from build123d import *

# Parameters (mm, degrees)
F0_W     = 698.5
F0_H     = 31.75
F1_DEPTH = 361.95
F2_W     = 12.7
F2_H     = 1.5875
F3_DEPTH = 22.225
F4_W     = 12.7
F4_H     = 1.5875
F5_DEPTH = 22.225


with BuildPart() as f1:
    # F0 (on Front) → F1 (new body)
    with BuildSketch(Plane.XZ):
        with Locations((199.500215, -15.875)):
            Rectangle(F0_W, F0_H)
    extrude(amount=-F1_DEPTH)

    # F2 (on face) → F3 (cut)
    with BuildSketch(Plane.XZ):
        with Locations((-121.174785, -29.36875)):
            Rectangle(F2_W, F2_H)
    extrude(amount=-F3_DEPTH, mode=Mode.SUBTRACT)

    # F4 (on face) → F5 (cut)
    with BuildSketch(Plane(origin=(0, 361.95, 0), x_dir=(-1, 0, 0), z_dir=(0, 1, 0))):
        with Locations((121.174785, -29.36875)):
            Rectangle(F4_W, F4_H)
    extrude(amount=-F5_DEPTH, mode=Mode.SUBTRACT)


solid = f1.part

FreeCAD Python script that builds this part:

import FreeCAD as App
import Part
import Sketcher

V = App.Vector
Q = App.Units.Quantity

doc = App.newDocument("Part")
body = doc.addObject("PartDesign::Body", "Body")

sketch1 = body.newObject("Sketcher::SketchObject", "Sketch")
sketch1.AttachmentSupport = (doc.getObject("XZ_Plane"), [""])
sketch1.MapMode = "FlatFace"
sketch1.addGeometry([
    Part.LineSegment(V(-150, 0, 0), V(-150, -32, 0)),
    Part.LineSegment(V(-150, -32, 0), V(549, -32, 0)),
    Part.LineSegment(V(549, -32, 0), V(549, 0, 0)),
    Part.LineSegment(V(549, 0, 0), V(-150, 0, 0)),
], False)
sketch1.addConstraint([
    Sketcher.Constraint("Coincident", 0, 2, 1, 1),
    Sketcher.Constraint("Coincident", 1, 2, 2, 1),
    Sketcher.Constraint("Coincident", 2, 2, 3, 1),
    Sketcher.Constraint("Coincident", 3, 2, 0, 1),
    Sketcher.Constraint("Vertical", 0),
    Sketcher.Constraint("Horizontal", 1),
    Sketcher.Constraint("Vertical", 2),
    Sketcher.Constraint("Horizontal", 3),
    Sketcher.Constraint("PointOnObject", 2, 2, -1),
    Sketcher.Constraint("DistanceX", 1, 1, 1, 2, Q("27.5 in")),
    Sketcher.Constraint("DistanceY", 0, 2, 0, 1, Q("1.25 in")),
    Sketcher.Constraint("DistanceX", 0, 2, -1, 1, 149.749785),
])
pad1 = body.newObject("PartDesign::Pad", "Pad")
pad1.Profile = sketch1
pad1.Length = Q("14.25 in")
pad1.Reversed = True

sketch2 = body.newObject("Sketcher::SketchObject", "Sketch001")
sketch2.AttachmentSupport = (doc.getObject("XZ_Plane"), [""])
sketch2.MapMode = "FlatFace"
sketch2.addGeometry([
    Part.LineSegment(V(-127.5, -28.6, 0), V(-127.5, -30.2, 0)),
    Part.LineSegment(V(-127.5, -30.2, 0), V(-114.8, -30.2, 0)),
    Part.LineSegment(V(-114.8, -30.2, 0), V(-114.8, -28.6, 0)),
    Part.LineSegment(V(-114.8, -28.6, 0), V(-127.5, -28.6, 0)),
], False)
sketch2.addConstraint([
    Sketcher.Constraint("Coincident", 0, 2, 1, 1),
    Sketcher.Constraint("Coincident", 1, 2, 2, 1),
    Sketcher.Constraint("Coincident", 2, 2, 3, 1),
    Sketcher.Constraint("Coincident", 3, 2, 0, 1),
    Sketcher.Constraint("Vertical", 0),
    Sketcher.Constraint("Horizontal", 1),
    Sketcher.Constraint("Vertical", 2),
    Sketcher.Constraint("Horizontal", 3),
    Sketcher.Constraint("DistanceX", 1, 1, 1, 2, Q("0.5 in")),
    Sketcher.Constraint("DistanceY", 0, 2, 0, 1, Q("0.0625 in")),
    Sketcher.Constraint("DistanceY", 0, 2, -1, 1, Q("1.1875 in")),
    Sketcher.Constraint("DistanceX", 0, 2, -1, 1, 127.524785),
])
pocket1 = body.newObject("PartDesign::Pocket", "Pocket")
pocket1.Profile = sketch2
pocket1.Length = Q("0.875 in")

sketch3 = body.newObject("Sketcher::SketchObject", "Sketch002")
sketch3.AttachmentSupport = (doc.getObject("XZ_Plane"), [""])
sketch3.MapMode = "FlatFace"
sketch3.AttachmentOffset = App.Placement(V(0, 0, -14.25 * 25.4), App.Rotation())
sketch3.addGeometry([
    Part.LineSegment(V(-114.8, -28.6, 0), V(-114.8, -30.2, 0)),
    Part.LineSegment(V(-114.8, -30.2, 0), V(-127.5, -30.2, 0)),
    Part.LineSegment(V(-127.5, -30.2, 0), V(-127.5, -28.6, 0)),
    Part.LineSegment(V(-127.5, -28.6, 0), V(-114.8, -28.6, 0)),
], False)
sketch3.addConstraint([
    Sketcher.Constraint("Coincident", 0, 2, 1, 1),
    Sketcher.Constraint("Coincident", 1, 2, 2, 1),
    Sketcher.Constraint("Coincident", 2, 2, 3, 1),
    Sketcher.Constraint("Coincident", 3, 2, 0, 1),
    Sketcher.Constraint("Vertical", 0),
    Sketcher.Constraint("Horizontal", 1),
    Sketcher.Constraint("Vertical", 2),
    Sketcher.Constraint("Horizontal", 3),
    Sketcher.Constraint("DistanceX", 1, 2, 1, 1, Q("0.5 in")),
    Sketcher.Constraint("DistanceY", 0, 2, 0, 1, Q("0.0625 in")),
    Sketcher.Constraint("DistanceY", 0, 2, -1, 1, Q("1.1875 in")),
    Sketcher.Constraint("DistanceX", 0, 2, -1, 1, 114.824785),
])
pocket2 = body.newObject("PartDesign::Pocket", "Pocket001")
pocket2.Profile = sketch3
pocket2.Length = Q("0.875 in")
pocket2.Reversed = True

doc.recompute()
